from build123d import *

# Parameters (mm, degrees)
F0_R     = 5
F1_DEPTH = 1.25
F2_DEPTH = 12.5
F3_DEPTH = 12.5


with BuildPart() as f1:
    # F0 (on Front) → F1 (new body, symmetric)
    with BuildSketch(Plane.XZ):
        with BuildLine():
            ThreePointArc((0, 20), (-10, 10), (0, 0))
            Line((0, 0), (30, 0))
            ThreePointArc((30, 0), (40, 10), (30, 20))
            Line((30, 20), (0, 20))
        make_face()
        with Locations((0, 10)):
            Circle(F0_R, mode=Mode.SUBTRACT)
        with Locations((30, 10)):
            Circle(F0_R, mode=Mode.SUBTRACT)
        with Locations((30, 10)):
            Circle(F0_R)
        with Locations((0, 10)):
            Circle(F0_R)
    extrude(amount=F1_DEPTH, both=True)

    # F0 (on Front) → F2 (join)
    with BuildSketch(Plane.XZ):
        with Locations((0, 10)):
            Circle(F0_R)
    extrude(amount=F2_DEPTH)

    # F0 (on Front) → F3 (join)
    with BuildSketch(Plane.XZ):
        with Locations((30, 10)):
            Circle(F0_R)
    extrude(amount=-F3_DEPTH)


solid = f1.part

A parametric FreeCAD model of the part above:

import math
import FreeCAD as App
import Part
import Sketcher

V = App.Vector

doc = App.newDocument("Part")
body = doc.addObject("PartDesign::Body", "Body")

# Sketch on XZ plane
sketch1 = doc.addObject("Sketcher::SketchObject", "Sketch")
body.addObject(sketch1)
sketch1.AttachmentSupport = (doc.XZ_Plane, [""])
sketch1.MapMode = "FlatFace"
sketch1.addGeometry([
    Part.ArcOfCircle(Part.Circle(V(0, 10, 0), V(0, 0, 1), 10), math.radians(90), math.radians(270)),
    Part.LineSegment(V(0, 0, 0), V(30, 0, 0)),
    Part.ArcOfCircle(Part.Circle(V(30, 10, 0), V(0, 0, 1), 10), math.radians(-90), math.radians(90)),
    Part.LineSegment(V(30, 20, 0), V(0, 20, 0)),
], False)
sketch1.addConstraint([
    Sketcher.Constraint("Tangent", 0, 2, 1, 1),
    Sketcher.Constraint("Tangent", 1, 2, 2, 1),
    Sketcher.Constraint("Tangent", 2, 2, 3, 1),
    Sketcher.Constraint("Tangent", 3, 2, 0, 1),
    Sketcher.Constraint("Horizontal", 1),
    Sketcher.Constraint("Horizontal", 3),
    Sketcher.Constraint("Coincident", 0, 2, -1, 1),
    Sketcher.Constraint("Radius", 0, 10.0),
    Sketcher.Constraint("DistanceX", 1, 1, 1, 2, 30.0),
])
pad1 = doc.addObject("PartDesign::Pad", "Pad")
body.addObject(pad1)
pad1.Profile = sketch1
pad1.Length = 2.5
pad1.Midplane = True

# Sketch on XZ plane
sketch2 = doc.addObject("Sketcher::SketchObject", "Sketch001")
body.addObject(sketch2)
sketch2.AttachmentSupport = (doc.XZ_Plane, [""])
sketch2.MapMode = "FlatFace"
sketch2.addGeometry(Part.Circle(V(0, 10, 0), V(0, 0, 1), 5), False)
sketch2.addConstraint([
    Sketcher.Constraint("PointOnObject", 0, 3, -2),
    Sketcher.Constraint("Diameter", 0, 10.0),
    Sketcher.Constraint("DistanceY", -1, 1, 0, 3, 10.0),
])
pad2 = doc.addObject("PartDesign::Pad", "Pad001")
body.addObject(pad2)
pad2.Profile = sketch2
pad2.Length = 12.5

# Sketch on XZ plane
sketch3 = doc.addObject("Sketcher::SketchObject", "Sketch002")
body.addObject(sketch3)
sketch3.AttachmentSupport = (doc.XZ_Plane, [""])
sketch3.MapMode = "FlatFace"
sketch3.addGeometry(Part.Circle(V(30, 10, 0), V(0, 0, 1), 5), False)
sketch3.addConstraint([
    Sketcher.Constraint("Diameter", 0, 10.0),
    Sketcher.Constraint("DistanceX", -1, 1, 0, 3, 30.0),
    Sketcher.Constraint("DistanceY", -1, 1, 0, 3, 10.0),
])
pad3 = doc.addObject("PartDesign::Pad", "Pad002")
body.addObject(pad3)
pad3.Profile = sketch3
pad3.Length = 12.5
pad3.Reversed = True

doc.recompute()
